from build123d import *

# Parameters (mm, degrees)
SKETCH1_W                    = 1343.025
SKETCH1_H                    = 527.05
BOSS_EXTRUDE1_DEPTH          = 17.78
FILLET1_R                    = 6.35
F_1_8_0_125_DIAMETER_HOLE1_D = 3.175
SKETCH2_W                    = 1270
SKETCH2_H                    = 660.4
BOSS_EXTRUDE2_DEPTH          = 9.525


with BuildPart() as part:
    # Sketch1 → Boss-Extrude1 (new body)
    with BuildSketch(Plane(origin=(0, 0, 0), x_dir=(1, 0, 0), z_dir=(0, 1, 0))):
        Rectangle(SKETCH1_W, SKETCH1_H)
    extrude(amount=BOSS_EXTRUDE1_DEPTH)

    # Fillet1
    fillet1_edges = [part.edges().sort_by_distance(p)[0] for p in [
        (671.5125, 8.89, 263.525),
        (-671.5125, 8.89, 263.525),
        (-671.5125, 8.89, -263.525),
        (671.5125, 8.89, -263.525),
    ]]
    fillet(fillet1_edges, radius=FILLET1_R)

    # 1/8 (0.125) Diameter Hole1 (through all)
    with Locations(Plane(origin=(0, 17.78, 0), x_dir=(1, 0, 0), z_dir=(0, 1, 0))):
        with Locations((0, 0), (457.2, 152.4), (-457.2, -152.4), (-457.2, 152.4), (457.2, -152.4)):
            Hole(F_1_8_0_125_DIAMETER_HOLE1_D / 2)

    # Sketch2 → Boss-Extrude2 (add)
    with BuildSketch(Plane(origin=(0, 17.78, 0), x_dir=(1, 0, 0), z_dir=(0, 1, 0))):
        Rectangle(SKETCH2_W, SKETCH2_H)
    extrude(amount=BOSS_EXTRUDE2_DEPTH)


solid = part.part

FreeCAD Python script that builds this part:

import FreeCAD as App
import Part
import Sketcher
Q = App.Units.Quantity


def edges_at(feature, points):
    """Names of the edges that pass closest to the given points."""
    edges = feature.Shape.Edges
    near = lambda p: min(range(len(edges)), key=lambda i: edges[i].distToShape(Part.Vertex(*p))[0])
    return sorted({f"Edge{near(p) + 1}" for p in points})


def add_polygon(sketch, points):
    """Adds a closed chain of lines whose ends are joined by coincident constraints."""
    first, n = sketch.GeometryCount, len(points)
    for a, b in zip(points, points[1:] + points[:1]):
        sketch.addGeometry(Part.LineSegment(App.Vector(*a, 0), App.Vector(*b, 0)), False)
    for i in range(n):
        sketch.addConstraint(Sketcher.Constraint("Coincident", first + i, 2, first + (i + 1) % n, 1))

doc = App.newDocument("Part")
body = doc.addObject("PartDesign::Body", "Body")

sketch1 = body.newObject("Sketcher::SketchObject", "Sketch")
sketch1.AttachmentSupport = (doc.getObject("XZ_Plane"), [""])
sketch1.MapMode = "FlatFace"
add_polygon(sketch1, [(-671.5125, -263.525), (-671.5125, 263.525), (671.5125, 263.525), (671.5125, -263.525)])
sketch1.addConstraint(Sketcher.Constraint("Vertical", 0))
sketch1.addConstraint(Sketcher.Constraint("Horizontal", 1))
sketch1.addConstraint(Sketcher.Constraint("Vertical", 2))
sketch1.addConstraint(Sketcher.Constraint("Horizontal", 3))
sketch1.addConstraint(Sketcher.Constraint("Symmetric", 0, 2, 2, 2, -1, 1))
sketch1.addConstraint(Sketcher.Constraint("DistanceY", 0, 1, 0, 2, Q("20.75 in")))
sketch1.addConstraint(Sketcher.Constraint("DistanceX", 1, 1, 1, 2, Q("52.875 in")))
pad1 = body.newObject("PartDesign::Pad", "Pad")
pad1.Profile = sketch1
pad1.Length = Q("0.7 in")
pad1.Reversed = True
doc.recompute()

fillet = body.newObject("PartDesign::Fillet", "Fillet")
fillet.Base = (pad1, edges_at(pad1, [
    (671.513, 8.89, 263.525),
    (-671.513, 8.89, 263.525),
    (-671.513, 8.89, -263.525),
    (671.513, 8.89, -263.525),
]))
fillet.Radius = Q("0.25 in")

sketch2 = body.newObject("Sketcher::SketchObject", "Sketch001")
sketch2.AttachmentSupport = (doc.getObject("XZ_Plane"), [""])
sketch2.MapMode = "FlatFace"
sketch2.AttachmentOffset = App.Placement(App.Vector(0, 0, -0.7 * 25.4), App.Rotation())
sketch2.addGeometry(Part.Circle(App.Vector(0, 0, 0), App.Vector(0, 0, 1), 1.5875), False)
sketch2.addGeometry(Part.Circle(App.Vector(457.2, -152.4, 0), App.Vector(0, 0, 1), 1.5875), False)
sketch2.addGeometry(Part.Circle(App.Vector(-457.2, 152.4, 0), App.Vector(0, 0, 1), 1.5875), False)
sketch2.addGeometry(Part.Circle(App.Vector(-457.2, -152.4, 0), App.Vector(0, 0, 1), 1.5875), False)
sketch2.addGeometry(Part.Circle(App.Vector(457.2, 152.4, 0), App.Vector(0, 0, 1), 1.5875), False)
sketch2.addConstraint(Sketcher.Constraint("Coincident", 0, 3, -1, 1))
sketch2.addConstraint(Sketcher.Constraint("Equal", 0, 1))
sketch2.addConstraint(Sketcher.Constraint("Equal", 1, 2))
sketch2.addConstraint(Sketcher.Constraint("Equal", 2, 3))
sketch2.addConstraint(Sketcher.Constraint("Equal", 3, 4))
sketch2.addConstraint(Sketcher.Constraint("Symmetric", 1, 3, 2, 3, -1, 1))
sketch2.addConstraint(Sketcher.Constraint("Symmetric", 3, 3, 4, 3, -1, 1))
sketch2.addConstraint(Sketcher.Constraint("Symmetric", 1, 3, 3, 3, -2))
sketch2.addConstraint(Sketcher.Constraint("Diameter", 0, Q("0.125 in")))
sketch2.addConstraint(Sketcher.Constraint("DistanceX", -1, 1, 1, 3, Q("18 in")))
sketch2.addConstraint(Sketcher.Constraint("DistanceY", 1, 3, -1, 1, Q("6 in")))
doc.recompute()
hole = body.newObject("PartDesign::Hole", "Hole")
hole.Profile = sketch2
hole.ThreadType = "None"
hole.Diameter = Q("0.125 in")
hole.DepthType = "ThroughAll"
hole.Reversed = True

sketch3 = body.newObject("Sketcher::SketchObject", "Sketch002")
sketch3.AttachmentSupport = (doc.getObject("XZ_Plane"), [""])
sketch3.MapMode = "FlatFace"
sketch3.AttachmentOffset = App.Placement(App.Vector(0, 0, -0.7 * 25.4), App.Rotation())
add_polygon(sketch3, [(-635, -330.2), (-635, 330.2), (635, 330.2), (635, -330.2)])
sketch3.addConstraint(Sketcher.Constraint("Vertical", 0))
sketch3.addConstraint(Sketcher.Constraint("Horizontal", 1))
sketch3.addConstraint(Sketcher.Constraint("Vertical", 2))
sketch3.addConstraint(Sketcher.Constraint("Horizontal", 3))
sketch3.addConstraint(Sketcher.Constraint("Symmetric", 0, 2, 2, 2, -1, 1))
sketch3.addConstraint(Sketcher.Constraint("DistanceX", 1, 1, 1, 2, Q("50 in")))
sketch3.addConstraint(Sketcher.Constraint("DistanceY", 0, 1, 0, 2, Q("26 in")))
pad2 = body.newObject("PartDesign::Pad", "Pad001")
pad2.Profile = sketch3
pad2.Length = Q("0.375 in")
pad2.Reversed = True

doc.recompute()
